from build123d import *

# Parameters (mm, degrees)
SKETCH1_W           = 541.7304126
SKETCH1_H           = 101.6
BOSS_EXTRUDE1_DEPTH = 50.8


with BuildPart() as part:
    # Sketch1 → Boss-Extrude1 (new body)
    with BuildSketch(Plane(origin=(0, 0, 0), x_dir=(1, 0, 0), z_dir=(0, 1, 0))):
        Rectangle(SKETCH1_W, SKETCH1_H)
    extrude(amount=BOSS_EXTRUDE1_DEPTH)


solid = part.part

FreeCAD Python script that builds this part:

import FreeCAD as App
import Part
import Sketcher

V = App.Vector
Q = App.Units.Quantity

doc = App.newDocument("Part")
body = doc.addObject("PartDesign::Body", "Body")

# Sketch on XZ plane
sketch1 = body.newObject("Sketcher::SketchObject", "Sketch")
sketch1.AttachmentSupport = (doc.getObject("XZ_Plane"), [""])
sketch1.MapMode = "FlatFace"
sketch1.addGeometry([
    Part.LineSegment(V(-271, -51, 0), V(-271, 51, 0)),
    Part.LineSegment(V(-271, 51, 0), V(271, 51, 0)),
    Part.LineSegment(V(271, 51, 0), V(271, -51, 0)),
    Part.LineSegment(V(271, -51, 0), V(-271, -51, 0)),
], False)
sketch1.addConstraint([
    Sketcher.Constraint("Coincident", 0, 2, 1, 1),
    Sketcher.Constraint("Coincident", 1, 2, 2, 1),
    Sketcher.Constraint("Coincident", 2, 2, 3, 1),
    Sketcher.Constraint("Coincident", 3, 2, 0, 1),
    Sketcher.Constraint("Vertical", 0),
    Sketcher.Constraint("Horizontal", 1),
    Sketcher.Constraint("Vertical", 2),
    Sketcher.Constraint("Horizontal", 3),
    Sketcher.Constraint("Symmetric", 0, 2, 2, 2, -1, 1),
    Sketcher.Constraint("DistanceY", 0, 1, 0, 2, Q("4 in")),
    Sketcher.Constraint("DistanceX", 1, 1, 1, 2, 541.730413),
])
pad1 = body.newObject("PartDesign::Pad", "Pad")
pad1.Profile = sketch1
pad1.Length = Q("2 in")
pad1.Reversed = True

doc.recompute()
